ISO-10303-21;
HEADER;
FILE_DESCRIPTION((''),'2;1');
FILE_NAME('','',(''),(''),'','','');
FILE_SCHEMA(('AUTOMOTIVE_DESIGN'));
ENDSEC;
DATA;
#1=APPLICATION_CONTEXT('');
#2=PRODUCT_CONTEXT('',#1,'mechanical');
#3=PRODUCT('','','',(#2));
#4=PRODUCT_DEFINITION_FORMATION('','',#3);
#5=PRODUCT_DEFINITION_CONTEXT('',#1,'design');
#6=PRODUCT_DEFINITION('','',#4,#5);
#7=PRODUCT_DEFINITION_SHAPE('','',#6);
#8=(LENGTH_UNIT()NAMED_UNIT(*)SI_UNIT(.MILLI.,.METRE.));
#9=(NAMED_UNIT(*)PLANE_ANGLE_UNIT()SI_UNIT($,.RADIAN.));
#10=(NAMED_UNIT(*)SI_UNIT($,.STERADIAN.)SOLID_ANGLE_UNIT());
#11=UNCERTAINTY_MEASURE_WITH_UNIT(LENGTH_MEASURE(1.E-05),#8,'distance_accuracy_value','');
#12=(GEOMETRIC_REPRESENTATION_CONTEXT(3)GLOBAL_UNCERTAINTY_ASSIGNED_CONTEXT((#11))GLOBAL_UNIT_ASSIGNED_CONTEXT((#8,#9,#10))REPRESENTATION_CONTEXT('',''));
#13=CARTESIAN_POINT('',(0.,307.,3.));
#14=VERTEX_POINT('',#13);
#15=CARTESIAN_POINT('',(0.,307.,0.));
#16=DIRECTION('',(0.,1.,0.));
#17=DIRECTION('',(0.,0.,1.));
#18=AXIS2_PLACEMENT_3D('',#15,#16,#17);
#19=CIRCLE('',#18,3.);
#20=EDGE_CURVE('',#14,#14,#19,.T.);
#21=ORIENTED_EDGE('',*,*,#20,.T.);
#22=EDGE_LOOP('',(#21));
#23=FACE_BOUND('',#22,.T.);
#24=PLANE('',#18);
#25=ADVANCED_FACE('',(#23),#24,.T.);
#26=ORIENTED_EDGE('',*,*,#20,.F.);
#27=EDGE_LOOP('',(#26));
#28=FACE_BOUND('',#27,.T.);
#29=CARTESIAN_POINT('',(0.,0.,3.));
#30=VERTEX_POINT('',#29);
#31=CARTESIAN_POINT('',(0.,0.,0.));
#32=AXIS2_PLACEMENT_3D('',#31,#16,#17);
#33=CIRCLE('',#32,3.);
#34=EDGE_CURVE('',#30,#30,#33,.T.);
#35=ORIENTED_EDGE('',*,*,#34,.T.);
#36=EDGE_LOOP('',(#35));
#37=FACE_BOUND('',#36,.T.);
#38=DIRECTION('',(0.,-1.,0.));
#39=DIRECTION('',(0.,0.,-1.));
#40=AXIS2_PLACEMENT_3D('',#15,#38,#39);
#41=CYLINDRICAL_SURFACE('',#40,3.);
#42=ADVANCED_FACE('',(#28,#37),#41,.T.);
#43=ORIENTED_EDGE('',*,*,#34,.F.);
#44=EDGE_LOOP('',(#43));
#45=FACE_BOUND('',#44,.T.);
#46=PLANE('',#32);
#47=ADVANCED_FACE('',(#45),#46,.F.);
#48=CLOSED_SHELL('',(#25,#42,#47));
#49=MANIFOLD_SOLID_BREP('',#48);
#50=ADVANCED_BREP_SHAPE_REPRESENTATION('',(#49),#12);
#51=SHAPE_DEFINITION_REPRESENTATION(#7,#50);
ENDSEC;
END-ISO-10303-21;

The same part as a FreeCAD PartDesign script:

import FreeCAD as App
import Part
import Sketcher
Q = App.Units.Quantity

doc = App.newDocument("Part")
params = doc.addObject("Spreadsheet::Sheet", "Params")
for row, (alias, value) in enumerate([
    ("sketch1_diameter", "6 mm"),
    ("pad1_length", "307 mm"),
], start=1):
    params.set(f"A{row}", alias)
    params.set(f"B{row}", "=" + value)
    params.setAlias(f"B{row}", alias)

body = doc.addObject("PartDesign::Body", "Body")

# Sketch on XZ plane
sketch1 = doc.addObject("Sketcher::SketchObject", "Sketch")
body.addObject(sketch1)
sketch1.AttachmentSupport = (doc.XZ_Plane, [""])
sketch1.MapMode = "FlatFace"
sketch1.addGeometry(Part.Circle(App.Vector(0, 0, 0), App.Vector(0, 0, 1), 3), False)
sketch1.addConstraint([
    Sketcher.Constraint("Coincident", 0, 3, -1, 1),
    Sketcher.Constraint("Diameter", 0, Q("6 mm")),
])
sketch1.setExpression("Constraints[1]", "Params.sketch1_diameter")
pad1 = doc.addObject("PartDesign::Pad", "Pad")
body.addObject(pad1)
pad1.Profile = sketch1
pad1.setExpression("Length", "Params.pad1_length")
pad1.Reversed = True

doc.recompute()
